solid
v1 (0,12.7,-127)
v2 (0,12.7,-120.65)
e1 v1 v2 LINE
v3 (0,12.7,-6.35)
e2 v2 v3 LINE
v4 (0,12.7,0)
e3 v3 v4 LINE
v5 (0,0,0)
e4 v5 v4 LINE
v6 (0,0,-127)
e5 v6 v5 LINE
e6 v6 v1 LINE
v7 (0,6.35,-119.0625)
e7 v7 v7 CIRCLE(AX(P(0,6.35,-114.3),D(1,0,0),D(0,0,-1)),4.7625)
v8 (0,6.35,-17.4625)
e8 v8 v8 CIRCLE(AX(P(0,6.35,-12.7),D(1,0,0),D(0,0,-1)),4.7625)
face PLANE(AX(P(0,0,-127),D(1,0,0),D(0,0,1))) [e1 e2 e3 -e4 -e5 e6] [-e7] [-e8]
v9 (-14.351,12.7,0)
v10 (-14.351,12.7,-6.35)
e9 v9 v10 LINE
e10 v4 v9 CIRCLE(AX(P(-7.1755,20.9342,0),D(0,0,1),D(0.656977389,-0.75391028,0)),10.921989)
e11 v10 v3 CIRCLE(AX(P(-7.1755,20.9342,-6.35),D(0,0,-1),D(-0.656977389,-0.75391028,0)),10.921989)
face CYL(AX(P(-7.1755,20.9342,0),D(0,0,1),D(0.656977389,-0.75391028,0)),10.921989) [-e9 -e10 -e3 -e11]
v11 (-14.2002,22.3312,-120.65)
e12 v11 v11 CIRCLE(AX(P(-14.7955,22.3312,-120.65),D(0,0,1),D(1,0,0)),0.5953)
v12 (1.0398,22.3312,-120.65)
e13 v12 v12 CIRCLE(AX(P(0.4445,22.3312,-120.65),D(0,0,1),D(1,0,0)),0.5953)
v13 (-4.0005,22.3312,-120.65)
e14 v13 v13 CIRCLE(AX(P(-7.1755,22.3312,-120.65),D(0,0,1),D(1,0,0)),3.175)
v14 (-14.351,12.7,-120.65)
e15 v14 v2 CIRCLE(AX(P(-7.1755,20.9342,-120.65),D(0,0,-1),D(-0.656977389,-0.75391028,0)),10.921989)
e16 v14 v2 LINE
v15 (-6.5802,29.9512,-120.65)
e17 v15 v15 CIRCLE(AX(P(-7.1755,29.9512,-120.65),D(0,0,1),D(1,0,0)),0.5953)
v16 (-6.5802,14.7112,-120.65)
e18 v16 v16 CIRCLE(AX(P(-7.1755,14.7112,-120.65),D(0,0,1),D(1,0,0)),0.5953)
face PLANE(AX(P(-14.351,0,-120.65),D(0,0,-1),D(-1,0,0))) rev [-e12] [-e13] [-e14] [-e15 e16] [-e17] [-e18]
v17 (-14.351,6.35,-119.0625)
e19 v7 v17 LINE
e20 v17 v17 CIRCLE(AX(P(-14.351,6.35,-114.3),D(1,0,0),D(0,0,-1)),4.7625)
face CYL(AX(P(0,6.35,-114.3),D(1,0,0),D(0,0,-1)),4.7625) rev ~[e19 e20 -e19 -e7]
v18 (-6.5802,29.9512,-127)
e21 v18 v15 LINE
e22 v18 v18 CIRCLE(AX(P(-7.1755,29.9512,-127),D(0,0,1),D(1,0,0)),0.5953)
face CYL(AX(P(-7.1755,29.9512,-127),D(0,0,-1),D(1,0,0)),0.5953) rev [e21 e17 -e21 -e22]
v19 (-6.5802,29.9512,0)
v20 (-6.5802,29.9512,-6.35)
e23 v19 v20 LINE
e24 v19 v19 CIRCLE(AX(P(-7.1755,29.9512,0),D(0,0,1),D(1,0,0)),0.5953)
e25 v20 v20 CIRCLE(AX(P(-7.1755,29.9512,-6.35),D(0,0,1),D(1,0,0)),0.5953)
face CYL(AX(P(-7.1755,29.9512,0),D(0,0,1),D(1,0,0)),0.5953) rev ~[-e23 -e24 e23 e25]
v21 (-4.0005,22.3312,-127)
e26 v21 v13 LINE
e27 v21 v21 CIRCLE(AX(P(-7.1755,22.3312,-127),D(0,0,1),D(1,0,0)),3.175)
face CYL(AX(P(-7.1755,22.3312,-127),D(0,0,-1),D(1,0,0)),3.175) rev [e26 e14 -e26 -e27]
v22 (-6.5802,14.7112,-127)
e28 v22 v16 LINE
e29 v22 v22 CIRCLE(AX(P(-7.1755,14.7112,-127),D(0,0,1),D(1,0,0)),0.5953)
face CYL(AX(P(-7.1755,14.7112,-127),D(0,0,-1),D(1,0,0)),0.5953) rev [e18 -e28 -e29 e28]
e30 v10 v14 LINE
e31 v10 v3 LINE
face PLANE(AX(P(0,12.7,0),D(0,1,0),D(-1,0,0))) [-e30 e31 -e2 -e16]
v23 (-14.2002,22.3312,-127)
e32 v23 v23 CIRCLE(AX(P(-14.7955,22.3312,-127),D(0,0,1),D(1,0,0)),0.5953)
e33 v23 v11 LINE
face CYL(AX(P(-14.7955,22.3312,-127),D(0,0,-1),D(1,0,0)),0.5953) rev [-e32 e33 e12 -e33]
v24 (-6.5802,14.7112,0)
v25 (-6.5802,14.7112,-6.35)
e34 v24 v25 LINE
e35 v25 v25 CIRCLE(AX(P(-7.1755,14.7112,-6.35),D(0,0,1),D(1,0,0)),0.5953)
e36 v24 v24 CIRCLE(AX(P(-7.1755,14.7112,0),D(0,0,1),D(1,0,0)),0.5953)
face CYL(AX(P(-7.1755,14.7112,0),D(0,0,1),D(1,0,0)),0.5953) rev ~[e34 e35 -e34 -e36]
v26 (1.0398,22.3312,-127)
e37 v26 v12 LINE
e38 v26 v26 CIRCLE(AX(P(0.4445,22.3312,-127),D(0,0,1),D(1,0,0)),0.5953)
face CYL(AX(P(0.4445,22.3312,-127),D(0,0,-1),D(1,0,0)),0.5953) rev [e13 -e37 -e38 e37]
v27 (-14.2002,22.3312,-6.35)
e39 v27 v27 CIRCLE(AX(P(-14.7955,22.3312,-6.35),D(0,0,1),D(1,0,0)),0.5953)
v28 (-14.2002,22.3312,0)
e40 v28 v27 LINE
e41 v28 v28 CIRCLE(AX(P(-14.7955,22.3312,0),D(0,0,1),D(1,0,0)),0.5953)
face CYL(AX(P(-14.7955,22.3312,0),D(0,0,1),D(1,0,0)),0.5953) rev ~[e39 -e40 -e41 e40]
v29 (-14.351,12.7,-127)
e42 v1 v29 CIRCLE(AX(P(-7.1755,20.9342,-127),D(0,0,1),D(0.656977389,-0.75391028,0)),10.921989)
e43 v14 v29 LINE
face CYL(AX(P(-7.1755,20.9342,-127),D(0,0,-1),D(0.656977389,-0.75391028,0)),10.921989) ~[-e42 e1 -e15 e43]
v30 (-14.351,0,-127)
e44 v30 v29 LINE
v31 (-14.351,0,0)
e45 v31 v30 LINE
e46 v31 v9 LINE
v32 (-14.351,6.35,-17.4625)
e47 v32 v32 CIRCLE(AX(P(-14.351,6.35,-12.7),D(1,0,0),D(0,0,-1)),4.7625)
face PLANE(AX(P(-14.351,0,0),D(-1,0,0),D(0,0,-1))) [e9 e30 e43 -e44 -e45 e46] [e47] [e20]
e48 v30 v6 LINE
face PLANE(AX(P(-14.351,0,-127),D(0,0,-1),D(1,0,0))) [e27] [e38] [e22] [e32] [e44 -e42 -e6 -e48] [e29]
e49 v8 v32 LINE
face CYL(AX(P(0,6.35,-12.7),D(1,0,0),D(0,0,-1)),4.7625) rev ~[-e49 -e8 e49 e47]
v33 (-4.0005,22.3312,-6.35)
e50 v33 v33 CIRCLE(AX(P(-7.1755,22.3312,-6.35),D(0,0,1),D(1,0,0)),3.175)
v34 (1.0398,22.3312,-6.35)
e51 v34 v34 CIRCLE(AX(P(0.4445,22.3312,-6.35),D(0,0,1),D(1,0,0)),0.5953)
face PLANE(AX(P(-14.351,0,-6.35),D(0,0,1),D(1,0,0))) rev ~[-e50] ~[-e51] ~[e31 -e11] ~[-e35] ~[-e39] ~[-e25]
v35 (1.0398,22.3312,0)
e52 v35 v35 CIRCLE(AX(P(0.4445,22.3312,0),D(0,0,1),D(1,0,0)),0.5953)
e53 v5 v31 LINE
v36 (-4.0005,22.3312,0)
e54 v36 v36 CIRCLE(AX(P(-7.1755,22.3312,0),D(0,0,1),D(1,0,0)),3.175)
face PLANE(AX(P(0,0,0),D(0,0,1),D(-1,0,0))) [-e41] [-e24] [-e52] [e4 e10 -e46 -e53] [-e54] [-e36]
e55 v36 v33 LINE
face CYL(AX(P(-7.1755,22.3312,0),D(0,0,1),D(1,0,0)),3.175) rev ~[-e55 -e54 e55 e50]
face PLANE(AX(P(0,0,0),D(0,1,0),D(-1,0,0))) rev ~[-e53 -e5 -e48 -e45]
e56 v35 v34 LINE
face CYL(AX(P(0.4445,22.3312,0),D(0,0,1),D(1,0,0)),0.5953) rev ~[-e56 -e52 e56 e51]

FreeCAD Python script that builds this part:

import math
import FreeCAD as App
import Part
import Sketcher

V = App.Vector
Q = App.Units.Quantity

doc = App.newDocument("Part")
body = doc.addObject("PartDesign::Body", "Body")

# Sketch on XZ plane
sketch1 = body.newObject("Sketcher::SketchObject", "Sketch")
sketch1.AttachmentSupport = (doc.getObject("XZ_Plane"), [""])
sketch1.MapMode = "FlatFace"
sketch1.addGeometry(Part.LineSegment(V(-14, 0, 0), V(0, 0, 0)), False)
sketch1.addGeometry(Part.LineSegment(V(0, 0, 0), V(0, -127, 0)), False)
sketch1.addGeometry(Part.LineSegment(V(0, -127, 0), V(-14, -127, 0)), False)
sketch1.addGeometry(Part.LineSegment(V(-14, -127, 0), V(-14, 0, 0)), False)
sketch1.addConstraint(Sketcher.Constraint("Coincident", 0, 2, 1, 1))
sketch1.addConstraint(Sketcher.Constraint("Coincident", 1, 2, 2, 1))
sketch1.addConstraint(Sketcher.Constraint("Coincident", 2, 2, 3, 1))
sketch1.addConstraint(Sketcher.Constraint("Coincident", 3, 2, 0, 1))
sketch1.addConstraint(Sketcher.Constraint("Horizontal", 0))
sketch1.addConstraint(Sketcher.Constraint("Vertical", 1))
sketch1.addConstraint(Sketcher.Constraint("Horizontal", 2))
sketch1.addConstraint(Sketcher.Constraint("Vertical", 3))
sketch1.addConstraint(Sketcher.Constraint("Coincident", 0, 2, -1, 1))
sketch1.addConstraint(Sketcher.Constraint("DistanceY", 1, 2, 1, 1, Q("5 in")))
sketch1.addConstraint(Sketcher.Constraint("DistanceX", 0, 1, 0, 2, Q("0.565 in")))
pad1 = body.newObject("PartDesign::Pad", "Pad")
pad1.Profile = sketch1
pad1.Length = Q("0.5 in")
pad1.Reversed = True

# Sketch on YZ plane
sketch2 = body.newObject("Sketcher::SketchObject", "Sketch001")
sketch2.AttachmentSupport = (doc.getObject("YZ_Plane"), [""])
sketch2.MapMode = "FlatFace"
sketch2.addGeometry(Part.Circle(V(6.3, -12.7, 0), V(0, 0, 1), 4.8), False)
sketch2.addGeometry(Part.Circle(V(6.3, -114.3, 0), V(0, 0, 1), 4.8), False)
sketch2.addConstraint(Sketcher.Constraint("Equal", 0, 1))
sketch2.addConstraint(Sketcher.Constraint("Vertical", 0, 3, 1, 3))
sketch2.addConstraint(Sketcher.Constraint("Diameter", 0, Q("0.375 in")))
sketch2.addConstraint(Sketcher.Constraint("DistanceY", 1, 3, 0, 3, Q("4 in")))
sketch2.addConstraint(Sketcher.Constraint("DistanceY", 0, 3, -1, 1, Q("0.5 in")))
sketch2.addConstraint(Sketcher.Constraint("DistanceX", -1, 1, 0, 3, Q("0.25 in")))
pocket1 = body.newObject("PartDesign::Pocket", "Pocket")
pocket1.Profile = sketch2
pocket1.Type = "ThroughAll"

# Sketch on XY plane
sketch3 = body.newObject("Sketcher::SketchObject", "Sketch002")
sketch3.AttachmentSupport = (doc.getObject("XY_Plane"), [""])
sketch3.MapMode = "FlatFace"
sketch3.addGeometry(Part.LineSegment(V(-14.4, 12.7, 0), V(0, 12.7, 0)), False)
sketch3.addGeometry(Part.ArcOfCircle(Part.Circle(V(-7.2, 20.9, 0), V(0, 0, 1), 10.9), math.radians(-49), math.radians(229)), False)
sketch3.addGeometry(Part.Circle(V(-7.2, 14.7, 0), V(0, 0, 1), 0.6), False)
sketch3.addGeometry(Part.Circle(V(-14.8, 22.3, 0), V(0, 0, 1), 0.6), False)
sketch3.addGeometry(Part.Circle(V(-7.2, 22.3, 0), V(0, 0, 1), 3.2), False)
sketch3.addGeometry(Part.Circle(V(0.4, 22.3, 0), V(0, 0, 1), 0.6), False)
sketch3.addGeometry(Part.Circle(V(-7.2, 30, 0), V(0, 0, 1), 0.6), False)
sketch3.addConstraint(Sketcher.Constraint("Coincident", 0, 1, 1, 2))
sketch3.addConstraint(Sketcher.Constraint("Coincident", 1, 1, 0, 2))
sketch3.addConstraint(Sketcher.Constraint("Horizontal", 0))
sketch3.addConstraint(Sketcher.Constraint("Equal", 2, 3))
sketch3.addConstraint(Sketcher.Constraint("Equal", 3, 5))
sketch3.addConstraint(Sketcher.Constraint("Equal", 5, 6))
sketch3.addConstraint(Sketcher.Constraint("PointOnObject", 1, 1, -2))
sketch3.addConstraint(Sketcher.Constraint("Horizontal", 3, 3, 4, 3))
sketch3.addConstraint(Sketcher.Constraint("Horizontal", 4, 3, 5, 3))
sketch3.addConstraint(Sketcher.Constraint("Vertical", 1, 3, 2, 3))
sketch3.addConstraint(Sketcher.Constraint("Vertical", 2, 3, 4, 3))
sketch3.addConstraint(Sketcher.Constraint("Vertical", 4, 3, 6, 3))
sketch3.addConstraint(Sketcher.Constraint("Diameter", 4, Q("0.25 in")))
sketch3.addConstraint(Sketcher.Constraint("Radius", 1, Q("0.43 in")))
sketch3.addConstraint(Sketcher.Constraint("Diameter", 2, Q("0.046874 in")))
sketch3.addConstraint(Sketcher.Constraint("DistanceX", 3, 3, 1, 3, Q("0.3 in")))
sketch3.addConstraint(Sketcher.Constraint("DistanceY", 2, 3, 3, 3, Q("0.3 in")))
sketch3.addConstraint(Sketcher.Constraint("DistanceX", 4, 3, 5, 3, Q("0.3 in")))
sketch3.addConstraint(Sketcher.Constraint("DistanceY", 4, 3, 6, 3, Q("0.3 in")))
sketch3.addConstraint(Sketcher.Constraint("DistanceY", -1, 1, 0, 1, Q("0.5 in")))
sketch3.addConstraint(Sketcher.Constraint("DistanceX", 0, 1, 0, 2, Q("0.565 in")))
sketch3.addConstraint(Sketcher.Constraint("DistanceY", 0, 1, 3, 3, Q("9.6312 mm")))
pad2 = body.newObject("PartDesign::Pad", "Pad001")
pad2.Profile = sketch3
pad2.Length = Q("0.25 in")
pad2.Reversed = True
doc.recompute()

datumplane = body.newObject("PartDesign::Plane", "DatumPlane")
datumplane.AttachmentSupport = (doc.getObject("XY_Plane"), [""])
datumplane.MapMode = "FlatFace"
datumplane.AttachmentOffset = App.Placement(V(0, 0, -2.5 * 25.4), App.Rotation())
mirrored = body.newObject("PartDesign::Mirrored", "Mirrored")
mirrored.Originals = [pad2]
mirrored.MirrorPlane = (datumplane, [""])
body.Tip = mirrored

doc.recompute()
